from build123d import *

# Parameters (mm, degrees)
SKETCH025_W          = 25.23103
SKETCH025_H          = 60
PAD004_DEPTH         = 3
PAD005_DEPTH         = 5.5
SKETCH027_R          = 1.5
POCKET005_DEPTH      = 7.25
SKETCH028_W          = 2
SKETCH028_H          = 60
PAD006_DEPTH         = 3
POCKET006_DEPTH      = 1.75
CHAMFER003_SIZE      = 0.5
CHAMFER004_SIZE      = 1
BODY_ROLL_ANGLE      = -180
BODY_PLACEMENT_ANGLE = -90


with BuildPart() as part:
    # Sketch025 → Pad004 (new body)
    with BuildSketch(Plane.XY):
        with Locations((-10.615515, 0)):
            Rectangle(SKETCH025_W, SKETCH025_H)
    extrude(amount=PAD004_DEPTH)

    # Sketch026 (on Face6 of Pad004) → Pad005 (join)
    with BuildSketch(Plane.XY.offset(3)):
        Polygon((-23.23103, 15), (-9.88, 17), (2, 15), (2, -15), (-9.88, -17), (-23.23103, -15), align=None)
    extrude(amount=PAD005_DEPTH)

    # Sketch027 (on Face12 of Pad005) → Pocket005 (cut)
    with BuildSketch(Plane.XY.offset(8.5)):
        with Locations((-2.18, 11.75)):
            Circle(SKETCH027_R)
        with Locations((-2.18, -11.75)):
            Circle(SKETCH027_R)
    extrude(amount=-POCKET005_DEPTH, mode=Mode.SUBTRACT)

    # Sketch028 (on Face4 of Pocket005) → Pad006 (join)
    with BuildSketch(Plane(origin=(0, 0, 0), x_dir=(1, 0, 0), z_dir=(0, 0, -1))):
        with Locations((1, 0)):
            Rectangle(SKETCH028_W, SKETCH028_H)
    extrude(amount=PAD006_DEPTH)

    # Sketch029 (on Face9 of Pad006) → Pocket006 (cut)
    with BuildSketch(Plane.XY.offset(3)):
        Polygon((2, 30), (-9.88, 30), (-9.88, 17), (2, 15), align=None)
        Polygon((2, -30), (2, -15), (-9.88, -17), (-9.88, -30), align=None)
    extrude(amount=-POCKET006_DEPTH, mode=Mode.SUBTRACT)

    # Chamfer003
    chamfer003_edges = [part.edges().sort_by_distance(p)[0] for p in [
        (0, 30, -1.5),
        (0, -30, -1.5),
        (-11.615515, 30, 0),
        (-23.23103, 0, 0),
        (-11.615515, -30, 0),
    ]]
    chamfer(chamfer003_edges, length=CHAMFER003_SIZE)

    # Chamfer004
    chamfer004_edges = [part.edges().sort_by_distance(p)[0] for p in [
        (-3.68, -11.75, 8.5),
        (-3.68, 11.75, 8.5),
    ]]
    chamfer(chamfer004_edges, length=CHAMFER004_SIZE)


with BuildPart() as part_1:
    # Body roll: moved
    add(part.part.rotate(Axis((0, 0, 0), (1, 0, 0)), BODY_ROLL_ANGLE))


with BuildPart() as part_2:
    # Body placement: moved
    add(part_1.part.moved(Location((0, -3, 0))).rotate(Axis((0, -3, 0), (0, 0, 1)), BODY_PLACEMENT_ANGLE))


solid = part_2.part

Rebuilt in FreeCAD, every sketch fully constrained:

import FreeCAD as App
import Part
import Sketcher

V = App.Vector
Q = App.Units.Quantity


def edges_at(feature, points):
    """Names of the edges that pass closest to the given points."""
    edges = feature.Shape.Edges
    near = lambda p: min(range(len(edges)), key=lambda i: edges[i].distToShape(Part.Vertex(*p))[0])
    return sorted({f"Edge{near(p) + 1}" for p in points})


def add_polygon(sketch, points):
    """Adds a closed chain of lines whose ends are joined by coincident constraints."""
    first, n = sketch.GeometryCount, len(points)
    for a, b in zip(points, points[1:] + points[:1]):
        sketch.addGeometry(Part.LineSegment(App.Vector(*a, 0), App.Vector(*b, 0)), False)
    for i in range(n):
        sketch.addConstraint(Sketcher.Constraint("Coincident", first + i, 2, first + (i + 1) % n, 1))

doc = App.newDocument("Part")
body = doc.addObject("PartDesign::Body", "Body")

sketch1 = body.newObject("Sketcher::SketchObject", "Sketch")
sketch1.AttachmentSupport = (doc.getObject("XY_Plane"), [""])
sketch1.MapMode = "FlatFace"
add_polygon(sketch1, [(-23, 30), (-23, -30), (2, -30), (2, 30)])
sketch1.addConstraint([
    Sketcher.Constraint("Vertical", 0),
    Sketcher.Constraint("Horizontal", 1),
    Sketcher.Constraint("Vertical", 2),
    Sketcher.Constraint("Horizontal", 3),
    Sketcher.Constraint("DistanceY", 0, 2, 0, 1, Q("60 mm")),
    Sketcher.Constraint("DistanceY", 0, 2, -1, 1, Q("30 mm")),
    Sketcher.Constraint("DistanceX", -1, 1, 1, 2, Q("2 mm")),
    Sketcher.Constraint("DistanceX", 1, 1, 1, 2, Q("25.23103 mm")),
])
pad1 = body.newObject("PartDesign::Pad", "Pad")
pad1.Profile = sketch1
pad1.Length = 3

sketch2 = body.newObject("Sketcher::SketchObject", "Sketch001")
sketch2.AttachmentSupport = (doc.getObject("XY_Plane"), [""])
sketch2.MapMode = "FlatFace"
sketch2.AttachmentOffset = App.Placement(V(0, 0, 3), App.Rotation())
add_polygon(sketch2, [(-10, 17), (-23, 15), (-23, -15), (-10, -17), (2, -15), (2, 15)])
sketch2.addConstraint([
    Sketcher.Constraint("Vertical", 1),
    Sketcher.Constraint("Vertical", 4),
    Sketcher.Constraint("Symmetric", 2, 2, 5, 2, -1),
    Sketcher.Constraint("Horizontal", 1, 2, 3, 2),
    Sketcher.Constraint("Horizontal", 0, 2, 4, 2),
    Sketcher.Constraint("Equal", 0, 2),
    Sketcher.Constraint("DistanceY", 1, 2, 1, 1, Q("30 mm")),
    Sketcher.Constraint("DistanceY", 2, 2, -1, 1, Q("17 mm")),
    Sketcher.Constraint("DistanceX", -1, 1, 3, 2, Q("2 mm")),
    Sketcher.Constraint("Distance", 0, Q("13.5 mm")),
    Sketcher.Constraint("DistanceX", 2, 2, -1, 1, Q("9.88 mm")),
])
pad2 = body.newObject("PartDesign::Pad", "Pad001")
pad2.Profile = sketch2
pad2.Length = 5.5

sketch3 = body.newObject("Sketcher::SketchObject", "Sketch002")
sketch3.AttachmentSupport = (doc.getObject("XY_Plane"), [""])
sketch3.MapMode = "FlatFace"
sketch3.AttachmentOffset = App.Placement(V(0, 0, 8.5), App.Rotation())
sketch3.addGeometry([
    Part.Circle(V(-2.2, 11.8, 0), V(0, 0, 1), 1.5),
    Part.Circle(V(-2.2, -11.8, 0), V(0, 0, 1), 1.5),
], False)
sketch3.addConstraint([
    Sketcher.Constraint("Equal", 0, 1),
    Sketcher.Constraint("Symmetric", 0, 3, 1, 3, -1),
    Sketcher.Constraint("Diameter", 0, Q("3 mm")),
    Sketcher.Constraint("DistanceY", 1, 3, 0, 3, Q("23.5 mm")),
    Sketcher.Constraint("DistanceX", 0, 3, -1, 1, Q("2.18 mm")),
])
pocket1 = body.newObject("PartDesign::Pocket", "Pocket")
pocket1.Profile = sketch3
pocket1.Length = 7.25

sketch4 = body.newObject("Sketcher::SketchObject", "Sketch003")
sketch4.AttachmentSupport = (doc.getObject("XY_Plane"), [""])
sketch4.MapMode = "FlatFace"
add_polygon(sketch4, [(0, -30), (0, 30), (2, 30), (2, -30)])
sketch4.addConstraint([
    Sketcher.Constraint("Vertical", 0),
    Sketcher.Constraint("Horizontal", 1),
    Sketcher.Constraint("Vertical", 2),
    Sketcher.Constraint("Horizontal", 3),
    Sketcher.Constraint("Symmetric", 0, 2, 3, 2, -1, 1),
    Sketcher.Constraint("DistanceX", 1, 1, 1, 2, Q("2 mm")),
    Sketcher.Constraint("DistanceY", 0, 1, 0, 2, Q("60 mm")),
])
pad3 = body.newObject("PartDesign::Pad", "Pad002")
pad3.Profile = sketch4
pad3.Length = 3
pad3.Reversed = True

sketch5 = body.newObject("Sketcher::SketchObject", "Sketch004")
sketch5.AttachmentSupport = (doc.getObject("XY_Plane"), [""])
sketch5.MapMode = "FlatFace"
sketch5.AttachmentOffset = App.Placement(V(0, 0, 3), App.Rotation())
add_polygon(sketch5, [(2, 30), (-10, 30), (-10, 17), (2, 15)])
add_polygon(sketch5, [(2, -30), (2, -15), (-10, -17), (-10, -30)])
sketch5.addConstraint([
    Sketcher.Constraint("Horizontal", 0),
    Sketcher.Constraint("Vertical", 1),
    Sketcher.Constraint("Vertical", 3),
    Sketcher.Constraint("Vertical", 4),
    Sketcher.Constraint("Vertical", 6),
    Sketcher.Constraint("Horizontal", 7),
    Sketcher.Constraint("Symmetric", 2, 2, 4, 2, -1),
    Sketcher.Constraint("Symmetric", 1, 2, 5, 2, -1),
    Sketcher.Constraint("Equal", 3, 4),
    Sketcher.Constraint("DistanceY", 1, 2, 1, 1, Q("13 mm")),
    Sketcher.Constraint("DistanceY", 3, 1, 3, 2, Q("15 mm")),
    Sketcher.Constraint("DistanceY", -1, 1, 0, 2, Q("30 mm")),
    Sketcher.Constraint("DistanceX", -1, 1, 2, 2, Q("2 mm")),
    Sketcher.Constraint("DistanceX", 0, 2, 0, 1, Q("11.88 mm")),
])
pocket2 = body.newObject("PartDesign::Pocket", "Pocket001")
pocket2.Profile = sketch5
pocket2.Length = 1.75
doc.recompute()

chamfer = body.newObject("PartDesign::Chamfer", "Chamfer")
chamfer.Base = (pocket2, edges_at(pocket2, [
    (0, 30, -1.5),
    (0, -30, -1.5),
    (-11.616, 30, 0),
    (-23.231, 0, 0),
    (-11.616, -30, 0),
]))
chamfer.Size = 0.5
doc.recompute()

chamfer2 = body.newObject("PartDesign::Chamfer", "Chamfer001")
chamfer2.Base = (chamfer, edges_at(chamfer, [(-3.68, -11.75, 8.5), (-3.68, 11.75, 8.5)]))
chamfer2.Size = 1
body2 = doc.addObject("PartDesign::Body", "Body001")
doc.recompute()

body.Placement = App.Placement(V(0, 0, 0), App.Rotation(V(1, 0, 0), 180))
boolean = body2.newObject("PartDesign::Boolean", "Boolean")
boolean.Type = "Fuse"
boolean.addObjects([body])
body3 = doc.addObject("PartDesign::Body", "Body002")
doc.recompute()

body2.Placement = App.Placement(V(0, -3, 0), App.Rotation(V(0, 0, 1), 270))
boolean2 = body3.newObject("PartDesign::Boolean", "Boolean001")
boolean2.Type = "Fuse"
boolean2.addObjects([body2])

doc.recompute()
